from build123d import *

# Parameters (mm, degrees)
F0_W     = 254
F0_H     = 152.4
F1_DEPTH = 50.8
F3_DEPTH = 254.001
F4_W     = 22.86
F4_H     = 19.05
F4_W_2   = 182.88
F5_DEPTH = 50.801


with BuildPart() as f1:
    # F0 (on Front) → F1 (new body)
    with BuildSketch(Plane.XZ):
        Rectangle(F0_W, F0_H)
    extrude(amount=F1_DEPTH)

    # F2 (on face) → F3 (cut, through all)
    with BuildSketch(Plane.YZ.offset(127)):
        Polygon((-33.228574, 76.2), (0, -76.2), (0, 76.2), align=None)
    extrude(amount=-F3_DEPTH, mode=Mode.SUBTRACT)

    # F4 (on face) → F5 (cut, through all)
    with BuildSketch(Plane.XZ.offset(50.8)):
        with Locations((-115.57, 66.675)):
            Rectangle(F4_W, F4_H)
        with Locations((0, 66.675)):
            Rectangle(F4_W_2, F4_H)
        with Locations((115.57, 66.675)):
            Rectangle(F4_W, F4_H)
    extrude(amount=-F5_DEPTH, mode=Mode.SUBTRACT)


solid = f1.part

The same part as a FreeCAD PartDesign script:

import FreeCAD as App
import Part
import Sketcher

V = App.Vector
Q = App.Units.Quantity

doc = App.newDocument("Part")
body = doc.addObject("PartDesign::Body", "Body")

sketch1 = body.newObject("Sketcher::SketchObject", "Sketch")
sketch1.AttachmentSupport = (doc.getObject("XZ_Plane"), [""])
sketch1.MapMode = "FlatFace"
sketch1.addGeometry([
    Part.LineSegment(V(-127, 76, 0), V(-127, -76, 0)),
    Part.LineSegment(V(-127, -76, 0), V(127, -76, 0)),
    Part.LineSegment(V(127, -76, 0), V(127, 76, 0)),
    Part.LineSegment(V(127, 76, 0), V(-127, 76, 0)),
], False)
sketch1.addConstraint([
    Sketcher.Constraint("Coincident", 0, 2, 1, 1),
    Sketcher.Constraint("Coincident", 1, 2, 2, 1),
    Sketcher.Constraint("Coincident", 2, 2, 3, 1),
    Sketcher.Constraint("Coincident", 3, 2, 0, 1),
    Sketcher.Constraint("Vertical", 0),
    Sketcher.Constraint("Horizontal", 1),
    Sketcher.Constraint("Vertical", 2),
    Sketcher.Constraint("Horizontal", 3),
    Sketcher.Constraint("Symmetric", 0, 2, 2, 2, -1, 1),
    Sketcher.Constraint("DistanceX", 1, 1, 1, 2, Q("10 in")),
    Sketcher.Constraint("DistanceY", 0, 2, 0, 1, Q("6 in")),
])
pad1 = body.newObject("PartDesign::Pad", "Pad")
pad1.Profile = sketch1
pad1.Length = Q("2 in")

sketch2 = body.newObject("Sketcher::SketchObject", "Sketch001")
sketch2.AttachmentSupport = (doc.getObject("YZ_Plane"), [""])
sketch2.MapMode = "FlatFace"
sketch2.AttachmentOffset = App.Placement(V(0, 0, 5 * 25.4), App.Rotation())
sketch2.addGeometry([
    Part.LineSegment(V(-33, 76, 0), V(0, -76, 0)),
    Part.LineSegment(V(0, -76, 0), V(0, 76, 0)),
    Part.LineSegment(V(0, 76, 0), V(-33, 76, 0)),
], False)
sketch2.addConstraint([
    Sketcher.Constraint("Coincident", 0, 2, 1, 1),
    Sketcher.Constraint("Coincident", 1, 2, 2, 1),
    Sketcher.Constraint("Coincident", 2, 2, 0, 1),
    Sketcher.Constraint("Vertical", 1),
    Sketcher.Constraint("Horizontal", 2),
    Sketcher.Constraint("Symmetric", 0, 2, 1, 2, -1, 1),
    Sketcher.Constraint("DistanceY", 1, 1, 1, 2, Q("6 in")),
    Sketcher.Constraint("Angle", 0, Q("-77.7 deg")),
])
pocket1 = body.newObject("PartDesign::Pocket", "Pocket")
pocket1.Profile = sketch2
pocket1.Type = "ThroughAll"

sketch3 = body.newObject("Sketcher::SketchObject", "Sketch002")
sketch3.AttachmentSupport = (doc.getObject("XZ_Plane"), [""])
sketch3.MapMode = "FlatFace"
sketch3.AttachmentOffset = App.Placement(V(0, 0, 2 * 25.4), App.Rotation())
sketch3.addGeometry([
    Part.LineSegment(V(-127, 76, 0), V(-127, 57, 0)),
    Part.LineSegment(V(-127, 57, 0), V(-104, 57, 0)),
    Part.LineSegment(V(-104, 57, 0), V(-104, 76, 0)),
    Part.LineSegment(V(-104, 76, 0), V(-127, 76, 0)),
    Part.LineSegment(V(-91, 76, 0), V(-91, 57, 0)),
    Part.LineSegment(V(-91, 57, 0), V(91, 57, 0)),
    Part.LineSegment(V(91, 57, 0), V(91, 76, 0)),
    Part.LineSegment(V(91, 76, 0), V(-91, 76, 0)),
    Part.LineSegment(V(104, 76, 0), V(104, 57, 0)),
    Part.LineSegment(V(104, 57, 0), V(127, 57, 0)),
    Part.LineSegment(V(127, 57, 0), V(127, 76, 0)),
    Part.LineSegment(V(127, 76, 0), V(104, 76, 0)),
], False)
sketch3.addConstraint([
    Sketcher.Constraint("Coincident", 0, 2, 1, 1),
    Sketcher.Constraint("Coincident", 1, 2, 2, 1),
    Sketcher.Constraint("Coincident", 2, 2, 3, 1),
    Sketcher.Constraint("Coincident", 3, 2, 0, 1),
    Sketcher.Constraint("Coincident", 4, 2, 5, 1),
    Sketcher.Constraint("Coincident", 5, 2, 6, 1),
    Sketcher.Constraint("Coincident", 6, 2, 7, 1),
    Sketcher.Constraint("Coincident", 7, 2, 4, 1),
    Sketcher.Constraint("Coincident", 8, 2, 9, 1),
    Sketcher.Constraint("Coincident", 9, 2, 10, 1),
    Sketcher.Constraint("Coincident", 10, 2, 11, 1),
    Sketcher.Constraint("Coincident", 11, 2, 8, 1),
    Sketcher.Constraint("Vertical", 0),
    Sketcher.Constraint("Horizontal", 1),
    Sketcher.Constraint("Vertical", 2),
    Sketcher.Constraint("Horizontal", 3),
    Sketcher.Constraint("Vertical", 4),
    Sketcher.Constraint("Horizontal", 5),
    Sketcher.Constraint("Vertical", 6),
    Sketcher.Constraint("Horizontal", 7),
    Sketcher.Constraint("Vertical", 8),
    Sketcher.Constraint("Horizontal", 9),
    Sketcher.Constraint("Vertical", 10),
    Sketcher.Constraint("Horizontal", 11),
    Sketcher.Constraint("Symmetric", 1, 2, 8, 2, -2),
    Sketcher.Constraint("Symmetric", 3, 2, 10, 2, -2),
    Sketcher.Constraint("Horizontal", 1, 2, 4, 2),
    Sketcher.Constraint("Horizontal", 3, 2, 6, 2),
    Sketcher.Constraint("DistanceX", 1, 1, 1, 2, Q("0.9 in")),
    Sketcher.Constraint("DistanceX", 5, 1, 5, 2, Q("7.2 in")),
    Sketcher.Constraint("DistanceX", 0, 2, -1, 1, Q("5 in")),
    Sketcher.Constraint("DistanceY", -1, 1, 2, 2, Q("3 in")),
    Sketcher.Constraint("DistanceY", 0, 2, 0, 1, Q("0.75 in")),
    Sketcher.Constraint("DistanceX", 4, 2, -1, 1, Q("3.6 in")),
])
pocket2 = body.newObject("PartDesign::Pocket", "Pocket001")
pocket2.Profile = sketch3
pocket2.Type = "ThroughAll"

doc.recompute()
